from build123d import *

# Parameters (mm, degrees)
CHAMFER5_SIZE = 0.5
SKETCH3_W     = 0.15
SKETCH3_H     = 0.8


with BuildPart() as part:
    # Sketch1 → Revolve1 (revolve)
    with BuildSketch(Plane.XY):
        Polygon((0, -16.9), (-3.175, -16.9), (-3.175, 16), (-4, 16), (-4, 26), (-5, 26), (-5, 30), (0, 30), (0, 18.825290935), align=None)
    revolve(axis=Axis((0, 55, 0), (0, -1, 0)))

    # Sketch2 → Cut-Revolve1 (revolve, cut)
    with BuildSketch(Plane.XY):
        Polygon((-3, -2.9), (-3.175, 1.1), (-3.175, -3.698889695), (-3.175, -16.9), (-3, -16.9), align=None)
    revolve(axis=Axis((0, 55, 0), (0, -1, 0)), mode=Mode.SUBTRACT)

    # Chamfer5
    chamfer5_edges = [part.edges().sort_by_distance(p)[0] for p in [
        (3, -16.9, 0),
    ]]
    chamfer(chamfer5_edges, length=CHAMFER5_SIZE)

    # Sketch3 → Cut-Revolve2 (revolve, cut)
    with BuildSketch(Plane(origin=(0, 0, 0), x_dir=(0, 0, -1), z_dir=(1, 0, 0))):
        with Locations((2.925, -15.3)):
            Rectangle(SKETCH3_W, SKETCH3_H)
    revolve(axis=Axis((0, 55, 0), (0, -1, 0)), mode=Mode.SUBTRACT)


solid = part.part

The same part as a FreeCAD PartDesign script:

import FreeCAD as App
import Part
import Sketcher
from FreeCAD import Vector


def edges_at(feature, points):
    """Names of the edges that pass closest to the given points."""
    edges = feature.Shape.Edges
    near = lambda p: min(range(len(edges)), key=lambda i: edges[i].distToShape(Part.Vertex(*p))[0])
    return sorted({f"Edge{near(p) + 1}" for p in points})

doc = App.newDocument("Part")
params = doc.addObject("Spreadsheet::Sheet", "Params")
for row, (alias, value) in enumerate([
    ("sketch1_width", "5 mm"),
    ("sketch1_width2", "1 mm"),
    ("sketch1_height", "4 mm"),
    ("sketch1_height2", "10 mm"),
    ("sketch1_height3", "46.9 mm"),
    ("revolution_angle", "360 deg"),
    ("sketch2_height", "18 mm"),
    ("sketch2_height2", "14 mm"),
    ("groove_angle", "360 deg"),
    ("chamfer_size", "0.5 mm"),
    ("sketch3_width", "0.8 mm"),
    ("sketch3_height", "0.15 mm"),
    ("groove2_angle", "360 deg"),
], start=1):
    params.set(f"A{row}", alias)
    params.set(f"B{row}", "=" + value)
    params.setAlias(f"B{row}", alias)

body = doc.addObject("PartDesign::Body", "Body")

sketch1 = body.newObject("Sketcher::SketchObject", "Sketch")
sketch1.AttachmentSupport = (doc.getObject("XY_Plane"), [""])
sketch1.MapMode = "FlatFace"
sketch1.addGeometry([
    Part.LineSegment(Vector(-3.2, -16.9, 0), Vector(0, -16.9, 0)),
    Part.LineSegment(Vector(0, -16.9, 0), Vector(0, 30, 0)),
    Part.LineSegment(Vector(0, 30, 0), Vector(-5, 30, 0)),
    Part.LineSegment(Vector(-5, 30, 0), Vector(-5, 26, 0)),
    Part.LineSegment(Vector(-5, 26, 0), Vector(-4, 26, 0)),
    Part.LineSegment(Vector(-4, 26, 0), Vector(-4, 16, 0)),
    Part.LineSegment(Vector(-4, 16, 0), Vector(-3.2, 16, 0)),
    Part.LineSegment(Vector(-3.2, 16, 0), Vector(-3.2, -16.9, 0)),
], False)
sketch1.addConstraint([
    Sketcher.Constraint("Coincident", 0, 2, 1, 1),
    Sketcher.Constraint("Coincident", 1, 2, 2, 1),
    Sketcher.Constraint("Coincident", 2, 2, 3, 1),
    Sketcher.Constraint("Coincident", 3, 2, 4, 1),
    Sketcher.Constraint("Coincident", 4, 2, 5, 1),
    Sketcher.Constraint("Coincident", 5, 2, 6, 1),
    Sketcher.Constraint("Coincident", 6, 2, 7, 1),
    Sketcher.Constraint("Coincident", 7, 2, 0, 1),
    Sketcher.Constraint("Horizontal", 0),
    Sketcher.Constraint("Vertical", 1),
    Sketcher.Constraint("Horizontal", 2),
    Sketcher.Constraint("Vertical", 3),
    Sketcher.Constraint("Horizontal", 4),
    Sketcher.Constraint("Vertical", 5),
    Sketcher.Constraint("Horizontal", 6),
    Sketcher.Constraint("Vertical", 7),
    Sketcher.Constraint("PointOnObject", 0, 2, -2),
    Sketcher.Constraint("DistanceX", 2, 2, 2, 1, 5.0),
    Sketcher.Constraint("DistanceX", 4, 1, 4, 2, 1.0),
    Sketcher.Constraint("DistanceY", 3, 2, 3, 1, 4.0),
    Sketcher.Constraint("DistanceY", 5, 2, 5, 1, 10.0),
    Sketcher.Constraint("DistanceY", 1, 1, 1, 2, 46.9),
    Sketcher.Constraint("DistanceY", -1, 1, 1, 2, 30.0),
    Sketcher.Constraint("DistanceX", 0, 1, 0, 2, 3.175),
])
sketch1.setExpression("Constraints[17]", "Params.sketch1_width")
sketch1.setExpression("Constraints[18]", "Params.sketch1_width2")
sketch1.setExpression("Constraints[19]", "Params.sketch1_height")
sketch1.setExpression("Constraints[20]", "Params.sketch1_height2")
sketch1.setExpression("Constraints[21]", "Params.sketch1_height3")
revolution = body.newObject("PartDesign::Revolution", "Revolution")
revolution.Profile = sketch1
revolution.ReferenceAxis = (sketch1, ["V_Axis"])
revolution.setExpression("Angle", "Params.revolution_angle")

sketch2 = body.newObject("Sketcher::SketchObject", "Sketch001")
sketch2.AttachmentSupport = (doc.getObject("XY_Plane"), [""])
sketch2.MapMode = "FlatFace"
sketch2.addGeometry([
    Part.LineSegment(Vector(-3, -2.9, 0), Vector(-3.17, 1.1, 0)),
    Part.LineSegment(Vector(-3.17, 1.1, 0), Vector(-3.17, -16.9, 0)),
    Part.LineSegment(Vector(-3.17, -16.9, 0), Vector(-3, -16.9, 0)),
    Part.LineSegment(Vector(-3, -16.9, 0), Vector(-3, -2.9, 0)),
], False)
sketch2.addConstraint([
    Sketcher.Constraint("Coincident", 0, 2, 1, 1),
    Sketcher.Constraint("Coincident", 1, 2, 2, 1),
    Sketcher.Constraint("Coincident", 2, 2, 3, 1),
    Sketcher.Constraint("Coincident", 3, 2, 0, 1),
    Sketcher.Constraint("Vertical", 1),
    Sketcher.Constraint("Horizontal", 2),
    Sketcher.Constraint("Vertical", 3),
    Sketcher.Constraint("DistanceY", 1, 2, 1, 1, 18.0),
    Sketcher.Constraint("DistanceY", 3, 1, 3, 2, 14.0),
    Sketcher.Constraint("DistanceX", 2, 2, -1, 1, 3.0),
    Sketcher.Constraint("DistanceY", -1, 1, 0, 2, 1.1),
    Sketcher.Constraint("DistanceX", 2, 1, 2, 2, 0.175),
])
sketch2.setExpression("Constraints[7]", "Params.sketch2_height")
sketch2.setExpression("Constraints[8]", "Params.sketch2_height2")
groove = body.newObject("PartDesign::Groove", "Groove")
groove.Profile = sketch2
groove.ReferenceAxis = (sketch2, ["V_Axis"])
groove.setExpression("Angle", "Params.groove_angle")
doc.recompute()

chamfer = body.newObject("PartDesign::Chamfer", "Chamfer")
chamfer.Base = (groove, edges_at(groove, [(3, -16.9, 0)]))
chamfer.setExpression("Size", "Params.chamfer_size")

sketch3 = body.newObject("Sketcher::SketchObject", "Sketch002")
sketch3.AttachmentSupport = (doc.getObject("YZ_Plane"), [""])
sketch3.MapMode = "FlatFace"
sketch3.addGeometry([
    Part.LineSegment(Vector(-14.9, -2.85, 0), Vector(-15.7, -2.85, 0)),
    Part.LineSegment(Vector(-15.7, -2.85, 0), Vector(-15.7, -3, 0)),
    Part.LineSegment(Vector(-15.7, -3, 0), Vector(-14.9, -3, 0)),
    Part.LineSegment(Vector(-14.9, -3, 0), Vector(-14.9, -2.85, 0)),
], False)
sketch3.addConstraint([
    Sketcher.Constraint("Coincident", 0, 2, 1, 1),
    Sketcher.Constraint("Coincident", 1, 2, 2, 1),
    Sketcher.Constraint("Coincident", 2, 2, 3, 1),
    Sketcher.Constraint("Coincident", 3, 2, 0, 1),
    Sketcher.Constraint("Horizontal", 0),
    Sketcher.Constraint("Vertical", 1),
    Sketcher.Constraint("Horizontal", 2),
    Sketcher.Constraint("Vertical", 3),
    Sketcher.Constraint("DistanceX", 0, 2, 0, 1, 0.8),
    Sketcher.Constraint("DistanceY", 1, 2, -1, 1, 3.0),
    Sketcher.Constraint("DistanceY", 1, 2, 1, 1, 0.15),
    Sketcher.Constraint("DistanceX", 0, 2, -1, 1, 15.7),
])
sketch3.setExpression("Constraints[8]", "Params.sketch3_width")
sketch3.setExpression("Constraints[10]", "Params.sketch3_height")
groove2 = body.newObject("PartDesign::Groove", "Groove001")
groove2.Profile = sketch3
groove2.ReferenceAxis = (sketch3, ["H_Axis"])
groove2.setExpression("Angle", "Params.groove2_angle")

doc.recompute()
